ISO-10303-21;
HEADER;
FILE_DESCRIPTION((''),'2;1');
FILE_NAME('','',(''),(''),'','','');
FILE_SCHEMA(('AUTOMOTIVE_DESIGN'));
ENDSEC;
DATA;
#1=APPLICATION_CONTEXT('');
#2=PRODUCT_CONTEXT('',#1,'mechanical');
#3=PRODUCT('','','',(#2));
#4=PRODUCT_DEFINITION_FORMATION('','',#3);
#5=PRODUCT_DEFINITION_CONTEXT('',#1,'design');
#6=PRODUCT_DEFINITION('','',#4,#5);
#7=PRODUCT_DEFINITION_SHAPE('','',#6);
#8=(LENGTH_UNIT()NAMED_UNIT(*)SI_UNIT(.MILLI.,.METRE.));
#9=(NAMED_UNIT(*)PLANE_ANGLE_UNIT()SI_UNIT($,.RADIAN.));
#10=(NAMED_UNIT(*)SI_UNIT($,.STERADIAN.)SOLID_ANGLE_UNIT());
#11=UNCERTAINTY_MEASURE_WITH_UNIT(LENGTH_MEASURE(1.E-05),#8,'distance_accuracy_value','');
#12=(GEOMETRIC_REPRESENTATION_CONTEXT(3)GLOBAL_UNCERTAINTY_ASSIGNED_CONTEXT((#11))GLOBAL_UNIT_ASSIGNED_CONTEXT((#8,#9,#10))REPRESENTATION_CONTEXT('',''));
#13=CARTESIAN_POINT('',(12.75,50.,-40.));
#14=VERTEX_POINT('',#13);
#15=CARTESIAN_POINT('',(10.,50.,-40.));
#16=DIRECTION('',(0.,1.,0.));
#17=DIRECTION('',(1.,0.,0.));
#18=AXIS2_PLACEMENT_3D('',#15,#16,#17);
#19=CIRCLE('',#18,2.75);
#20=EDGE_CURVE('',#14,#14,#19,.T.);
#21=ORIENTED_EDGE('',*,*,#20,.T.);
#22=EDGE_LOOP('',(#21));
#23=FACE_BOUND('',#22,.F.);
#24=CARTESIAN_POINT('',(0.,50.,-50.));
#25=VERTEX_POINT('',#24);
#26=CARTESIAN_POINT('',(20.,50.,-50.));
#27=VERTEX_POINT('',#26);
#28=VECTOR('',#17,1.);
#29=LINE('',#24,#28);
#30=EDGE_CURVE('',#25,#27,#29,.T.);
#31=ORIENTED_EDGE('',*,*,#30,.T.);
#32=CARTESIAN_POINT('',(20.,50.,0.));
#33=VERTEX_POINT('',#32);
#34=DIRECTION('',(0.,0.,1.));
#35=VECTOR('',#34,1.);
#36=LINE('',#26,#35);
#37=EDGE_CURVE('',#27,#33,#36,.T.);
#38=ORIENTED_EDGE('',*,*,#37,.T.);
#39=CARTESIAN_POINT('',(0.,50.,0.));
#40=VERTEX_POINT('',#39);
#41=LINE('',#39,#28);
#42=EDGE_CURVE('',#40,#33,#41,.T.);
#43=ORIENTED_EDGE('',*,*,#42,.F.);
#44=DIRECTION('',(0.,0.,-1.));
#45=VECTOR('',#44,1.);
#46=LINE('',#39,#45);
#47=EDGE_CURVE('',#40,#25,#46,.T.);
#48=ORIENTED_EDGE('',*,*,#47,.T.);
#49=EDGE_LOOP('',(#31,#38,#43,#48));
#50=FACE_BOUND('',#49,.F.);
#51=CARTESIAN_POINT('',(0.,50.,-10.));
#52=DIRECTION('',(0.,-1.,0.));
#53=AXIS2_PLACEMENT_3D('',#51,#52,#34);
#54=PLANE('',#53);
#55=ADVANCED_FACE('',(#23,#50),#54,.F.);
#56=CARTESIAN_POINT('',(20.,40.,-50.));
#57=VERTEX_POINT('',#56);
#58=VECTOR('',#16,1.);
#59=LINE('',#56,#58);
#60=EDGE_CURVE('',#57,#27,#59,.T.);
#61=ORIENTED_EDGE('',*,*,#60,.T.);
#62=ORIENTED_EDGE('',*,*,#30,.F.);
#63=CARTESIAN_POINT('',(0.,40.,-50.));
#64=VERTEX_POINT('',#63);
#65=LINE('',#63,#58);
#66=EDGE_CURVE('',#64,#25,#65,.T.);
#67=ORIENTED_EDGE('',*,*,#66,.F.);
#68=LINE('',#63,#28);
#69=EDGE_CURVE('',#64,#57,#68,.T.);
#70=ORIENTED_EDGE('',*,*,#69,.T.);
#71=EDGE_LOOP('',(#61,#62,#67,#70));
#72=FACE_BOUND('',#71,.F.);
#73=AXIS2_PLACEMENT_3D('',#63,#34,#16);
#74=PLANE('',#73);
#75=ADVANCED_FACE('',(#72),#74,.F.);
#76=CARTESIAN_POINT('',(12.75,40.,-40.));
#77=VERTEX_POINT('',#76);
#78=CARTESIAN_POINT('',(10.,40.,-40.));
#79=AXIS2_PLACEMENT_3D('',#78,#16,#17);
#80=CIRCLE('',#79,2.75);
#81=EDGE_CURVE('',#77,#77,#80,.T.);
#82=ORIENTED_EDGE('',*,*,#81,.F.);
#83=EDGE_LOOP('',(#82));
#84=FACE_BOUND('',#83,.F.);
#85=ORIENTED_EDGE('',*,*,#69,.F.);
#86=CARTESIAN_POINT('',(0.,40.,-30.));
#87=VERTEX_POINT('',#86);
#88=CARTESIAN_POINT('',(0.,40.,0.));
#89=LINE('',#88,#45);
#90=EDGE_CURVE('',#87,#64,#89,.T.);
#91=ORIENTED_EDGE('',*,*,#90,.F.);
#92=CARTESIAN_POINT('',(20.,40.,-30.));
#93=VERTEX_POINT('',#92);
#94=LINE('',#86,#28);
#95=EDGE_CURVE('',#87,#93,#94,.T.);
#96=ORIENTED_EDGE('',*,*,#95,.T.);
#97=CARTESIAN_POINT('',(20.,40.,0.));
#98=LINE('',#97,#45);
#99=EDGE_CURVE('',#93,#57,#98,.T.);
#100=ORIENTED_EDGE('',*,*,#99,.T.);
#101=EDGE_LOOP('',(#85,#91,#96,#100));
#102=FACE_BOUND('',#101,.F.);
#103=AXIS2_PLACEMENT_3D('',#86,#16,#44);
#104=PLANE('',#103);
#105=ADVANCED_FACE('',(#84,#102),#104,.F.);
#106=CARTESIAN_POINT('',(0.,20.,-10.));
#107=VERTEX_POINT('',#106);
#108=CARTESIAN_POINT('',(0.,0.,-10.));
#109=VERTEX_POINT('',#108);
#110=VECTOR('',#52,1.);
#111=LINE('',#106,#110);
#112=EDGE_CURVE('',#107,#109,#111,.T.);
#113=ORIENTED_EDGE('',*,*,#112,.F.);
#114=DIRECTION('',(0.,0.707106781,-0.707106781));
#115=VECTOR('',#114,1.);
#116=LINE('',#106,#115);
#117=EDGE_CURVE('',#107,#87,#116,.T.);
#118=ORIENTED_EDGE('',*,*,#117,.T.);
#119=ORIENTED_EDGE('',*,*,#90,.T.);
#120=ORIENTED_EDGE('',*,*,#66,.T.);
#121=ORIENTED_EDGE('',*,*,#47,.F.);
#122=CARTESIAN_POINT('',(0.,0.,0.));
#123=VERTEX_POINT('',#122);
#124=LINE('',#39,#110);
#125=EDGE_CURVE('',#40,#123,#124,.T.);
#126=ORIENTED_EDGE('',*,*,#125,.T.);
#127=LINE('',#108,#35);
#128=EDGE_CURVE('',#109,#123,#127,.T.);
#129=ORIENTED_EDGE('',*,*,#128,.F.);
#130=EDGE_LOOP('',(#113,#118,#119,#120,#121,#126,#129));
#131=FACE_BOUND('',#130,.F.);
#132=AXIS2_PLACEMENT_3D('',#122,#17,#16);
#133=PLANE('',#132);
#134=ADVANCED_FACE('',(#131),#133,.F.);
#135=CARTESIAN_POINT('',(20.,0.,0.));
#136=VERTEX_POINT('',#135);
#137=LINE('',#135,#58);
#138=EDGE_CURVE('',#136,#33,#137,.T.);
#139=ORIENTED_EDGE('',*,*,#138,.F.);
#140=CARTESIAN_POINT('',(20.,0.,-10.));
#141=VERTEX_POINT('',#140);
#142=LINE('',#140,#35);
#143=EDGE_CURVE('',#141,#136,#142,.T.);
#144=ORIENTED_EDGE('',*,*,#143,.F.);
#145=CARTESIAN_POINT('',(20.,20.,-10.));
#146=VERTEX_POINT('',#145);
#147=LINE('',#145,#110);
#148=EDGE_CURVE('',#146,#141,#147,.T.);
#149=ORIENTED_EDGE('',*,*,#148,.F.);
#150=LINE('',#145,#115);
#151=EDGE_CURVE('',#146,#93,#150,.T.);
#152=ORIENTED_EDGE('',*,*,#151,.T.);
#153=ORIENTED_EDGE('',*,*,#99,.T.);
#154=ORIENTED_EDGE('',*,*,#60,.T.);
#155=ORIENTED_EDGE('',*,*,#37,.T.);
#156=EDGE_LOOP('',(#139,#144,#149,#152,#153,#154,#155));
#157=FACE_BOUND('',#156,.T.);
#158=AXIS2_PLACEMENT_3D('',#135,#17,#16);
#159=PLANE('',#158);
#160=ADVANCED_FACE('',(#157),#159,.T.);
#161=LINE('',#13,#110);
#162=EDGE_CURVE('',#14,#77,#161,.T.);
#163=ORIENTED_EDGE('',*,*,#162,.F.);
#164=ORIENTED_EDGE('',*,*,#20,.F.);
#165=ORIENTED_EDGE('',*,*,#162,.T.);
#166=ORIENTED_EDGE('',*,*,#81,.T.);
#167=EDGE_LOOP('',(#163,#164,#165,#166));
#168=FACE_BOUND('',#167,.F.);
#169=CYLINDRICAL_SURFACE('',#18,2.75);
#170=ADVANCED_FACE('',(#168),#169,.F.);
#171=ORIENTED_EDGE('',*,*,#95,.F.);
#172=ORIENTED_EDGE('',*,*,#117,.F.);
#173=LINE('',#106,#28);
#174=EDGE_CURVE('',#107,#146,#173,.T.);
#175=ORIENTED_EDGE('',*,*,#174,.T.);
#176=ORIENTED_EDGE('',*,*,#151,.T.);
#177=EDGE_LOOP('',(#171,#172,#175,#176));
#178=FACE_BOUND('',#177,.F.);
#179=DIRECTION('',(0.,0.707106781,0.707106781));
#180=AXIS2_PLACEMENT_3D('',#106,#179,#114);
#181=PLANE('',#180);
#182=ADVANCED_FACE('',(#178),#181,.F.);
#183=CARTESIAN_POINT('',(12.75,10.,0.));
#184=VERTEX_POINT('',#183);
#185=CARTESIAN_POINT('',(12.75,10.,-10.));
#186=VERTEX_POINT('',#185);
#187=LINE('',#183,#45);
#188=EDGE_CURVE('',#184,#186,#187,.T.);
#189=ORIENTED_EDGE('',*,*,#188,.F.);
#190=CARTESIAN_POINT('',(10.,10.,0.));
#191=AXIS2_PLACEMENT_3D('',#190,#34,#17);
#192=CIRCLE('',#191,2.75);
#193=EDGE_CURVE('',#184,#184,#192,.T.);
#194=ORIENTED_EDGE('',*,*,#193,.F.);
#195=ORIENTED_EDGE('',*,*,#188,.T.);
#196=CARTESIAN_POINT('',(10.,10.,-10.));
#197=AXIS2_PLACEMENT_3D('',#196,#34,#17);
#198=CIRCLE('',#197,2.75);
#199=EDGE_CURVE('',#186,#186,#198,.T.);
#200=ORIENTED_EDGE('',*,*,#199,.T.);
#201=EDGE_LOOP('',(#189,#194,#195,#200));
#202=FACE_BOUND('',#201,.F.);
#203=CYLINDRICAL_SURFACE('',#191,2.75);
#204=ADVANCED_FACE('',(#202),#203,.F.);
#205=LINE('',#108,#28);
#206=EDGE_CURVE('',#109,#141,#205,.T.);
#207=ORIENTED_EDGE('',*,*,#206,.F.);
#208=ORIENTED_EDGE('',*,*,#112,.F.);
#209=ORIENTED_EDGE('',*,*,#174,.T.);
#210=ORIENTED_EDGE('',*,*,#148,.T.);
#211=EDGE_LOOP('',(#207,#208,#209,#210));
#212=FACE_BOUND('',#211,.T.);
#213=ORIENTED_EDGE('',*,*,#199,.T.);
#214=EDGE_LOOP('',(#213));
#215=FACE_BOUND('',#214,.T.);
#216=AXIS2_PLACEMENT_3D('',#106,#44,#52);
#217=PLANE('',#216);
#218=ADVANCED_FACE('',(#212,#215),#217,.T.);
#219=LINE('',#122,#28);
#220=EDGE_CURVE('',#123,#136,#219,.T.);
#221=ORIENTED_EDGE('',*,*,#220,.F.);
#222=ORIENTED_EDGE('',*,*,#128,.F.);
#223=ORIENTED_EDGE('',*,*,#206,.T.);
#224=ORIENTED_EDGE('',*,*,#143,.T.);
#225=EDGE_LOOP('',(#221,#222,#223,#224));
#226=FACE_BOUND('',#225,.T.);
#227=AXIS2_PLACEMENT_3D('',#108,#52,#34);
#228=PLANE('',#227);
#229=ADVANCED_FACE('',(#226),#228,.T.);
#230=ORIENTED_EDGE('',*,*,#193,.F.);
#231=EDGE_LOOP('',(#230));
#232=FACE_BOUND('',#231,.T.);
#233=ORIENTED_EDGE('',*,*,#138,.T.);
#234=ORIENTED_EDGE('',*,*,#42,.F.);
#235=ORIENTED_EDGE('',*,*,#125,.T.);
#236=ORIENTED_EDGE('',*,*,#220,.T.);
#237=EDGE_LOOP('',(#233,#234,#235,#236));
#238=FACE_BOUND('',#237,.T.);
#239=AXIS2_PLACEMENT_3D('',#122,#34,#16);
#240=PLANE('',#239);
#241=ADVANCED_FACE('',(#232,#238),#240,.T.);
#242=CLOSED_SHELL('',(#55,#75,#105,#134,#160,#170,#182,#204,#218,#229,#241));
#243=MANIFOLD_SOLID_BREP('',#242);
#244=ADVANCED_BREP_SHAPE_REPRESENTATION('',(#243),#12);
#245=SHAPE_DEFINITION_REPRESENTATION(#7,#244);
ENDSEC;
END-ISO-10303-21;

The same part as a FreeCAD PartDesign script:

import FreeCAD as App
import Part
import Sketcher

V = App.Vector

doc = App.newDocument("Part")
body = doc.addObject("PartDesign::Body", "Body")

# Sketch on YZ plane
sketch1 = body.newObject("Sketcher::SketchObject", "Sketch")
sketch1.AttachmentSupport = (doc.getObject("YZ_Plane"), [""])
sketch1.MapMode = "FlatFace"
sketch1.addGeometry(Part.LineSegment(V(0, 0, 0), V(0, -10, 0)), False)
sketch1.addGeometry(Part.LineSegment(V(0, -10, 0), V(20, -10, 0)), False)
sketch1.addGeometry(Part.LineSegment(V(20, -10, 0), V(40, -30, 0)), False)
sketch1.addGeometry(Part.LineSegment(V(40, -30, 0), V(40, -50, 0)), False)
sketch1.addGeometry(Part.LineSegment(V(40, -50, 0), V(50, -50, 0)), False)
sketch1.addGeometry(Part.LineSegment(V(50, -50, 0), V(50, 0, 0)), False)
sketch1.addGeometry(Part.LineSegment(V(50, 0, 0), V(0, 0, 0)), False)
sketch1.addConstraint(Sketcher.Constraint("Coincident", 0, 2, 1, 1))
sketch1.addConstraint(Sketcher.Constraint("Coincident", 1, 2, 2, 1))
sketch1.addConstraint(Sketcher.Constraint("Coincident", 2, 2, 3, 1))
sketch1.addConstraint(Sketcher.Constraint("Coincident", 3, 2, 4, 1))
sketch1.addConstraint(Sketcher.Constraint("Coincident", 4, 2, 5, 1))
sketch1.addConstraint(Sketcher.Constraint("Coincident", 5, 2, 6, 1))
sketch1.addConstraint(Sketcher.Constraint("Coincident", 6, 2, 0, 1))
sketch1.addConstraint(Sketcher.Constraint("Vertical", 0))
sketch1.addConstraint(Sketcher.Constraint("Horizontal", 1))
sketch1.addConstraint(Sketcher.Constraint("Vertical", 3))
sketch1.addConstraint(Sketcher.Constraint("Horizontal", 4))
sketch1.addConstraint(Sketcher.Constraint("Vertical", 5))
sketch1.addConstraint(Sketcher.Constraint("Horizontal", 6))
sketch1.addConstraint(Sketcher.Constraint("Coincident", 6, 2, -1, 1))
sketch1.addConstraint(Sketcher.Constraint("Equal", 4, 0))
sketch1.addConstraint(Sketcher.Constraint("Equal", 1, 3))
sketch1.addConstraint(Sketcher.Constraint("Equal", 6, 5))
sketch1.addConstraint(Sketcher.Constraint("DistanceX", 1, 1, 1, 2, 20.0))
sketch1.addConstraint(Sketcher.Constraint("DistanceX", 4, 1, 4, 2, 10.0))
sketch1.addConstraint(Sketcher.Constraint("DistanceX", 6, 2, 6, 1, 50.0))
pad1 = body.newObject("PartDesign::Pad", "Pad")
pad1.Profile = sketch1
pad1.Length = 20

# Sketch on XZ plane
sketch2 = body.newObject("Sketcher::SketchObject", "Sketch001")
sketch2.AttachmentSupport = (doc.getObject("XZ_Plane"), [""])
sketch2.MapMode = "FlatFace"
sketch2.AttachmentOffset = App.Placement(V(0, 0, -50), App.Rotation())
sketch2.addGeometry(Part.Circle(V(10, -40, 0), V(0, 0, 1), 2.8), False)
sketch2.addConstraint(Sketcher.Constraint("Diameter", 0, 5.5))
sketch2.addConstraint(Sketcher.Constraint("DistanceX", -1, 1, 0, 3, 10.0))
sketch2.addConstraint(Sketcher.Constraint("DistanceY", 0, 3, -1, 1, 40.0))
pocket1 = body.newObject("PartDesign::Pocket", "Pocket")
pocket1.Profile = sketch2
pocket1.Length = 20
pocket1.Reversed = True

# Sketch on XY plane
sketch3 = body.newObject("Sketcher::SketchObject", "Sketch002")
sketch3.AttachmentSupport = (doc.getObject("XY_Plane"), [""])
sketch3.MapMode = "FlatFace"
sketch3.addGeometry(Part.Circle(V(10, 10, 0), V(0, 0, 1), 2.8), False)
sketch3.addConstraint(Sketcher.Constraint("Diameter", 0, 5.5))
sketch3.addConstraint(Sketcher.Constraint("DistanceX", -1, 1, 0, 3, 10.0))
sketch3.addConstraint(Sketcher.Constraint("DistanceY", -1, 1, 0, 3, 10.0))
pocket2 = body.newObject("PartDesign::Pocket", "Pocket001")
pocket2.Profile = sketch3
pocket2.Length = 20

doc.recompute()
